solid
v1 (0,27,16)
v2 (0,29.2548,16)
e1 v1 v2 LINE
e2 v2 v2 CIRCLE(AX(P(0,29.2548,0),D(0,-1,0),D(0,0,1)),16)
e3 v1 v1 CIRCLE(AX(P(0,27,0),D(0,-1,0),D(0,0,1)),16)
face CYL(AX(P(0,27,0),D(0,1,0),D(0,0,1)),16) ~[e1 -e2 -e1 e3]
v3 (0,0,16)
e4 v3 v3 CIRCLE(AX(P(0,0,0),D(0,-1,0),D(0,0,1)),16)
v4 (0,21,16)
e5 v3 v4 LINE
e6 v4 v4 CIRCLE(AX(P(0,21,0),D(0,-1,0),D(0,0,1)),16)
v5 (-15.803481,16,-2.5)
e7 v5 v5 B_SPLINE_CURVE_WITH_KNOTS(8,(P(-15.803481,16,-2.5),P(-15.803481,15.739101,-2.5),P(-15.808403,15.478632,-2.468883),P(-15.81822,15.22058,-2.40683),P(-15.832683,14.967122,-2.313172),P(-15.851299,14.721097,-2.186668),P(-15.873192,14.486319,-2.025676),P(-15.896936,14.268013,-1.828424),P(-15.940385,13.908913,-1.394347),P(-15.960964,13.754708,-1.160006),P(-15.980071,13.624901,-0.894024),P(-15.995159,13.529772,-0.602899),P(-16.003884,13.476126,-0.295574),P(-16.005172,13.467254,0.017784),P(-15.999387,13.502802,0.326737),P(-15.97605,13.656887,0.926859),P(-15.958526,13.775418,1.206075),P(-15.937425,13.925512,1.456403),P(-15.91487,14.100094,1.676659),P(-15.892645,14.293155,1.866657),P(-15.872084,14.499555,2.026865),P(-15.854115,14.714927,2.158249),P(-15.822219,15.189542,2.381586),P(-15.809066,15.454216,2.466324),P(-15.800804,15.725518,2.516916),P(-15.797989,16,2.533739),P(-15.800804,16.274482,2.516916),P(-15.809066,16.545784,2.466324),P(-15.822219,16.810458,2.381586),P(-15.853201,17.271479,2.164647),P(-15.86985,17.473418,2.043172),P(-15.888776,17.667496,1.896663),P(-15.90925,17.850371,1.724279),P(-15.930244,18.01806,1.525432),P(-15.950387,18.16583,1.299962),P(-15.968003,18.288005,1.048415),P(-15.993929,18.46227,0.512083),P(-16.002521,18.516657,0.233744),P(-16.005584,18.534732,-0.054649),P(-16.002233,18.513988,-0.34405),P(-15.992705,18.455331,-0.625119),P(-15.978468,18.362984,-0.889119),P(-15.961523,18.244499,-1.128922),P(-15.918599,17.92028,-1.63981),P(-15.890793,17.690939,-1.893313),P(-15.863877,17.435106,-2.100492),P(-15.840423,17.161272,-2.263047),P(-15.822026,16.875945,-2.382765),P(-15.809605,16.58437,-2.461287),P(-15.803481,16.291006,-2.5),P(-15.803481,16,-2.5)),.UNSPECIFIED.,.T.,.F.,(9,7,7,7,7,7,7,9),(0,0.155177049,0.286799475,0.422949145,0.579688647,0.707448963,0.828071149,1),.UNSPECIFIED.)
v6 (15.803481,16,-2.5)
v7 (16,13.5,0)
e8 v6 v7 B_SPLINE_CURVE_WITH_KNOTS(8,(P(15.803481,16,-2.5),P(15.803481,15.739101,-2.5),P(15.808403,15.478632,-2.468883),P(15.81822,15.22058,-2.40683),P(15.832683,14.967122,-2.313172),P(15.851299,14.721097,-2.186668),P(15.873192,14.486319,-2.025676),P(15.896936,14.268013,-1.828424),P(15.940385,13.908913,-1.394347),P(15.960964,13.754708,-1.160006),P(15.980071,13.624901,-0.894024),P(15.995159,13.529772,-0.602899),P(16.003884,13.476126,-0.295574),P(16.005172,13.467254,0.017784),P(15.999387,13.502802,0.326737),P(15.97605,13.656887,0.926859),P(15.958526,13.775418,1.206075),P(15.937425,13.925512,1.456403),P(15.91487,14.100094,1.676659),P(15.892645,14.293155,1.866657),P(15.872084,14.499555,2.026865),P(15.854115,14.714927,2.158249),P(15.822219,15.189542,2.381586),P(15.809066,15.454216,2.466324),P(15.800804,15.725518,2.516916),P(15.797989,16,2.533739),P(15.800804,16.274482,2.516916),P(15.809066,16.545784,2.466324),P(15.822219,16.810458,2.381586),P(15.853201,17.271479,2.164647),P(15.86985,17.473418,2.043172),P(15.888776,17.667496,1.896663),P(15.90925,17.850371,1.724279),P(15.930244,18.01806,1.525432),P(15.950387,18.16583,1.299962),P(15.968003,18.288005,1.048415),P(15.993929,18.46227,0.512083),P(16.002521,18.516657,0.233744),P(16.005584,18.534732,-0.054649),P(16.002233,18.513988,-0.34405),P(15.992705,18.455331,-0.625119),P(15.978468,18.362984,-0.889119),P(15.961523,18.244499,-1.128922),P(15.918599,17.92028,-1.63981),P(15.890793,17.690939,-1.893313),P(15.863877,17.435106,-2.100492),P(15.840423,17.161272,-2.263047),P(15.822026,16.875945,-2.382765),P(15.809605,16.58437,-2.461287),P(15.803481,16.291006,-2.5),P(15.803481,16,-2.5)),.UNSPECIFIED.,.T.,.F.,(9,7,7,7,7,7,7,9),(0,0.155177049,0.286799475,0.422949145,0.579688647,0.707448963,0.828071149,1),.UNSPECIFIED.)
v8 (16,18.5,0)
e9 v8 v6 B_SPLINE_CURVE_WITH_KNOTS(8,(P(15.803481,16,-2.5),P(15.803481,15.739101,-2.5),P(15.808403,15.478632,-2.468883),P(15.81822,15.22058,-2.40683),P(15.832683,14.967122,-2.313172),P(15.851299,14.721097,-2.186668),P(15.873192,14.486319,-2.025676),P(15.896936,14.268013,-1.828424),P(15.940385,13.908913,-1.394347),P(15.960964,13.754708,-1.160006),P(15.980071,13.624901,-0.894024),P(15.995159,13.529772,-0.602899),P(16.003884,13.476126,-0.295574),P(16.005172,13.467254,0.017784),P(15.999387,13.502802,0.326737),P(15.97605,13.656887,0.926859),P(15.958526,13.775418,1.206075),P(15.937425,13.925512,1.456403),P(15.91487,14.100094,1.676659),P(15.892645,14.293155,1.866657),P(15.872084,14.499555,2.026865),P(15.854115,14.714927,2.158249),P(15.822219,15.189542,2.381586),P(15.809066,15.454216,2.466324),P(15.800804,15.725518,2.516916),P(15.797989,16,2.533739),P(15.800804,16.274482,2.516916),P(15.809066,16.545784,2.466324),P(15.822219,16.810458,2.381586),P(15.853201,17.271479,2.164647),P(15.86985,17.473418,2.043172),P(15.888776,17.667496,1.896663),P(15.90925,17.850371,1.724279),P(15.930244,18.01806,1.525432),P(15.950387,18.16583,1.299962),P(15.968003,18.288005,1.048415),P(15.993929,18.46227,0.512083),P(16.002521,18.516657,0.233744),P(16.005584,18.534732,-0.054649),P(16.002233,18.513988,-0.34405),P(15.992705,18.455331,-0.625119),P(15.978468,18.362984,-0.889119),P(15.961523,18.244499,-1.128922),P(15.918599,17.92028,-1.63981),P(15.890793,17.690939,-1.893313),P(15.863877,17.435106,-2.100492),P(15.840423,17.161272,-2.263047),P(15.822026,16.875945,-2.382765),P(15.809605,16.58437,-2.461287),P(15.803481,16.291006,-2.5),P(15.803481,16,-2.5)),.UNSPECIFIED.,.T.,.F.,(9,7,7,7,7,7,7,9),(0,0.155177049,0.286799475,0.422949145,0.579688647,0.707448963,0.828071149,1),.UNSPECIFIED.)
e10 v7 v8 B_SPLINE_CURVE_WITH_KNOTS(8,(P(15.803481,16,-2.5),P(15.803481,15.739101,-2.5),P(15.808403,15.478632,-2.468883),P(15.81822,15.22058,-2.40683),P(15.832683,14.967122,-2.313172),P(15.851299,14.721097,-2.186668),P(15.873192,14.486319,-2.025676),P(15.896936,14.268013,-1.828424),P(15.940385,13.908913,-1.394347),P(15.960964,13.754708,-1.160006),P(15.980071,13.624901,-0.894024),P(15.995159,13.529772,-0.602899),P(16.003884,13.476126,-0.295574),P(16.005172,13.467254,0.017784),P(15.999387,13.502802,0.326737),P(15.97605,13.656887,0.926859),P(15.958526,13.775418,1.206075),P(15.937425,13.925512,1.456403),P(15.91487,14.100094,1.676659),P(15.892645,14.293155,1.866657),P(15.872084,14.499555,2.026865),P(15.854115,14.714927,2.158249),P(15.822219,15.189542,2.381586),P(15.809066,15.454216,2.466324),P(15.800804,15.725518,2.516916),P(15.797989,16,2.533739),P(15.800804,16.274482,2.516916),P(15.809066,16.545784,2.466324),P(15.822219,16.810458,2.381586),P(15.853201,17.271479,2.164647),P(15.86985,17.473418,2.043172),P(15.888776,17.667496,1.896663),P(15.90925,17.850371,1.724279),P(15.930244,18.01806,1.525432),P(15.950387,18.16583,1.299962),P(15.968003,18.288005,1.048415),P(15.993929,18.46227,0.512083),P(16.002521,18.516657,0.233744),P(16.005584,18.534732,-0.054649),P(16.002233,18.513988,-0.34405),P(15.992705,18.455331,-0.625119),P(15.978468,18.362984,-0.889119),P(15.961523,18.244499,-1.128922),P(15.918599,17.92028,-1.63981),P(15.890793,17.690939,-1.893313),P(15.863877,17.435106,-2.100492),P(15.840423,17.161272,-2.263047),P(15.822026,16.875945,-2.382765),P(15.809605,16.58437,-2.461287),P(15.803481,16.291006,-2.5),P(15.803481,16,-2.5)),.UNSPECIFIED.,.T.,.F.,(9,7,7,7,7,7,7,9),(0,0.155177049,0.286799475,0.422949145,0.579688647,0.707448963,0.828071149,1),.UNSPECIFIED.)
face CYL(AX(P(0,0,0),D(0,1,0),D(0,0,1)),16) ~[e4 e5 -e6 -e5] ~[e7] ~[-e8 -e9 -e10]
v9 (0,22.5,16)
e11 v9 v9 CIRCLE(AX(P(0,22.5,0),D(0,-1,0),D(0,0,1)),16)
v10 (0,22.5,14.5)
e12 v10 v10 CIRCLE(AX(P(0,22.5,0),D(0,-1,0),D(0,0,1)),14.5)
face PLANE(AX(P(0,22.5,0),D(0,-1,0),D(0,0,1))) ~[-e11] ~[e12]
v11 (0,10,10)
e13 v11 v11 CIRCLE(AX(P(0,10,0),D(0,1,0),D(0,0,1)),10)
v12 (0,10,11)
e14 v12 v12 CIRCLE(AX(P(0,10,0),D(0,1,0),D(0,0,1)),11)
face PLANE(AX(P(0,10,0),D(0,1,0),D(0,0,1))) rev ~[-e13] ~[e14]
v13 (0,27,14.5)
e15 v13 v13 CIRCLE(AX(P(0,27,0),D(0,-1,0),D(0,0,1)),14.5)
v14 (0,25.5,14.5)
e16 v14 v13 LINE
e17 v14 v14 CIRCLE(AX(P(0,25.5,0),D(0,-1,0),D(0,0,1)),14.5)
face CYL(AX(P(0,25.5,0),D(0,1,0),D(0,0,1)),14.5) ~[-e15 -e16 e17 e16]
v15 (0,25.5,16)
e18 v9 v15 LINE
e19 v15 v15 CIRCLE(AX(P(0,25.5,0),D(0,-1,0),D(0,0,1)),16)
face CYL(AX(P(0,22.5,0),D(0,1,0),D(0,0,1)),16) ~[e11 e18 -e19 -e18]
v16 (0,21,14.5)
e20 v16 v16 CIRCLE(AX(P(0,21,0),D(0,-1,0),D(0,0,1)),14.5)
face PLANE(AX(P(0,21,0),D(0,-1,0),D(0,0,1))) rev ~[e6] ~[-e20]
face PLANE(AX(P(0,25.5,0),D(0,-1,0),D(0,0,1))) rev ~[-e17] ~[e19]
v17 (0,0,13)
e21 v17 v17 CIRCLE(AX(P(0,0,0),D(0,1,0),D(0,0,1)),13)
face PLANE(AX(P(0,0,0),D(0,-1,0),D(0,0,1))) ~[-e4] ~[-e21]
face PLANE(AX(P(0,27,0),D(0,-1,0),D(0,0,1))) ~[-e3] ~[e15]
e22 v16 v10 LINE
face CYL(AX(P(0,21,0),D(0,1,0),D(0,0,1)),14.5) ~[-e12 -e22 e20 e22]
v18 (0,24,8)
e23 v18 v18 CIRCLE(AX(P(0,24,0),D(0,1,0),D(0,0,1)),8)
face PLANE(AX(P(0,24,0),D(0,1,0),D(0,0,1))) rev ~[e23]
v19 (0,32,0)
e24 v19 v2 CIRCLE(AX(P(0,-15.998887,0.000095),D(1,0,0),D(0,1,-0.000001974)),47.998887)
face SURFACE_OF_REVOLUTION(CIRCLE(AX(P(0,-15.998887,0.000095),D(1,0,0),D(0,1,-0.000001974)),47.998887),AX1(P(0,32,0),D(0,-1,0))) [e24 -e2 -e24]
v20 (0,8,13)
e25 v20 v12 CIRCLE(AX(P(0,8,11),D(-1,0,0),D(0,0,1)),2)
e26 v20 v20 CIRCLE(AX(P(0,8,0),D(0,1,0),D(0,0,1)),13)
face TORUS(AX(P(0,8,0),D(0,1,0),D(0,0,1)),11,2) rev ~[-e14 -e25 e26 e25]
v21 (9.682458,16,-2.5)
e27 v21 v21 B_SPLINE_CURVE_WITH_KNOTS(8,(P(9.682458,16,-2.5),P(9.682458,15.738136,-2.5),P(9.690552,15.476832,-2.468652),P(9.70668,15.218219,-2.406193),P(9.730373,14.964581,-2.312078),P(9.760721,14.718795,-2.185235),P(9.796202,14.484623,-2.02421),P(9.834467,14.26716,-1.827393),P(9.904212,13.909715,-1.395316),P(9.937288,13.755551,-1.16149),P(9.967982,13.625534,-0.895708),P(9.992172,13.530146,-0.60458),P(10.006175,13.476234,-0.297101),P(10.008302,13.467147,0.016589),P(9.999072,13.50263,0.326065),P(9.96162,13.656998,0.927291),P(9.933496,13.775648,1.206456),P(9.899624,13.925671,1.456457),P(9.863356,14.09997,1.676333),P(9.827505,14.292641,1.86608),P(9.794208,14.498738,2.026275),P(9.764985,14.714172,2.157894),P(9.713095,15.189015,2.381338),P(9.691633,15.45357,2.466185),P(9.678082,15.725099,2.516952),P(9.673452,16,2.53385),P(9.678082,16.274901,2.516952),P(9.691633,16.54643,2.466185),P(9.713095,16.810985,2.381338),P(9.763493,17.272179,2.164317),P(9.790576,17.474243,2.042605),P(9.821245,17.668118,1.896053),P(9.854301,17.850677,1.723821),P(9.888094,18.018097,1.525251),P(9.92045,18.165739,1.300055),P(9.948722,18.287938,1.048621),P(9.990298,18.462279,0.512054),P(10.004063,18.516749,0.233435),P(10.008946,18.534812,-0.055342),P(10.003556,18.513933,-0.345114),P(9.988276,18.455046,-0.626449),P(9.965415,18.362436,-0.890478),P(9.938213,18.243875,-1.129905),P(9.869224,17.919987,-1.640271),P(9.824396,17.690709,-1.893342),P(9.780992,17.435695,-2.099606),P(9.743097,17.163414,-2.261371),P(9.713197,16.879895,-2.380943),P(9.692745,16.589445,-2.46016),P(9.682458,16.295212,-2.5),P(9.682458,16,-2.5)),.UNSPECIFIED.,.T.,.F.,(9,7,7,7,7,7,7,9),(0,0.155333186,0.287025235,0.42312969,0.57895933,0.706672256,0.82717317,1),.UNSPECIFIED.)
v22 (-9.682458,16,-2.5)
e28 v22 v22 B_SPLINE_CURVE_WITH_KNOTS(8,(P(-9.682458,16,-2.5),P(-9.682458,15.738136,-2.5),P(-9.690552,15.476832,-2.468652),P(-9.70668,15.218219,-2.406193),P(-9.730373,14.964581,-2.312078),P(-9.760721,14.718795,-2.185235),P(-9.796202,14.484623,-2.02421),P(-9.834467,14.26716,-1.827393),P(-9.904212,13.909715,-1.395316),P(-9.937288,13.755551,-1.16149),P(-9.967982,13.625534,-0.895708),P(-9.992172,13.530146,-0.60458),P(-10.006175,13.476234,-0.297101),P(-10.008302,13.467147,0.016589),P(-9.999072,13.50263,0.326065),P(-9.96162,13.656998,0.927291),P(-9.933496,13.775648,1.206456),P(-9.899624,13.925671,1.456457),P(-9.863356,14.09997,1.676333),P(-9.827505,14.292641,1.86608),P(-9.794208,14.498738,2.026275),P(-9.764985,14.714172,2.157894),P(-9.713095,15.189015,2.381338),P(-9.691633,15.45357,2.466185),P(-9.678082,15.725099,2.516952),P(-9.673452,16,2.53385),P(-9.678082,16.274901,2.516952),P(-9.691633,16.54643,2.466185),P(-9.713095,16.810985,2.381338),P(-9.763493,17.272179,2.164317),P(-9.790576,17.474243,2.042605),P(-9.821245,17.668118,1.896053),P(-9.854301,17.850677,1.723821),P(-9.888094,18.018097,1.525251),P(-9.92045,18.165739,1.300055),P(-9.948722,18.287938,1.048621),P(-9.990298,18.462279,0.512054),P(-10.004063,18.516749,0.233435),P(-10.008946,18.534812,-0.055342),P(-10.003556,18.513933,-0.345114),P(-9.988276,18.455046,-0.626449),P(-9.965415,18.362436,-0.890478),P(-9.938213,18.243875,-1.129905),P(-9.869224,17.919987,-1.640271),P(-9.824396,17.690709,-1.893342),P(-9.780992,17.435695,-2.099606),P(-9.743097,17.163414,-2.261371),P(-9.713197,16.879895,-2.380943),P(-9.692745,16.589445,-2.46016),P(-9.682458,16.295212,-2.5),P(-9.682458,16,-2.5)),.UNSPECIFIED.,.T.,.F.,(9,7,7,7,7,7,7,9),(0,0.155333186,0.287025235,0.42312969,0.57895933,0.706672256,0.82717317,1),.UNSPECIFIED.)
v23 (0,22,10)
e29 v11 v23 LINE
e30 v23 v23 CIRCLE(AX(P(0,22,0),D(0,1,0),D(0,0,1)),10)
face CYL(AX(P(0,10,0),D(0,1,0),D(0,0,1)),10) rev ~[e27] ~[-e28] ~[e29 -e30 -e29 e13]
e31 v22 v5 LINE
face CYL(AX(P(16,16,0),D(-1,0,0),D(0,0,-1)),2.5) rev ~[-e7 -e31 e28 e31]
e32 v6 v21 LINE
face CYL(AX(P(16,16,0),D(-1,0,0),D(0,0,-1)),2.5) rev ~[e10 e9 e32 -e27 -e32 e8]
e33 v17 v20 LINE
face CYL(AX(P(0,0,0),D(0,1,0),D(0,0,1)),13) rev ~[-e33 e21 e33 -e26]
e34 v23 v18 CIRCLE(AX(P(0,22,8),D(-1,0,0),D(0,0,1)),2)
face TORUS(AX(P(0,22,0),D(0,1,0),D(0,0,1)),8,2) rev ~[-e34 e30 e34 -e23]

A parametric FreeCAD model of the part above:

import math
import FreeCAD as App
import Part
import Sketcher


def edges_at(feature, points):
    """Names of the edges that pass closest to the given points."""
    edges = feature.Shape.Edges
    near = lambda p: min(range(len(edges)), key=lambda i: edges[i].distToShape(Part.Vertex(*p))[0])
    return sorted({f"Edge{near(p) + 1}" for p in points})

doc = App.newDocument("Part")
body = doc.addObject("PartDesign::Body", "Body")

# Sketch on YZ plane
sketch1 = body.newObject("Sketcher::SketchObject", "Sketch")
sketch1.AttachmentSupport = (doc.getObject("YZ_Plane"), [""])
sketch1.MapMode = "FlatFace"
sketch1.addGeometry(Part.LineSegment(App.Vector(0, 16, 0), App.Vector(0, 0, 0)), False)
sketch1.addGeometry(Part.LineSegment(App.Vector(0, 0, 0), App.Vector(32, 0, 0)), False)
sketch1.addGeometry(Part.ArcOfCircle(Part.Circle(App.Vector(-15.998887, 0.000095, 0), App.Vector(0, 0, 1), 47.998887), math.radians(-0.000113), math.radians(19.47157)), False)
sketch1.addGeometry(Part.LineSegment(App.Vector(29.2548, 16, 0), App.Vector(27, 16, 0)), False)
sketch1.addGeometry(Part.LineSegment(App.Vector(27, 16, 0), App.Vector(27, 14.5, 0)), False)
sketch1.addGeometry(Part.LineSegment(App.Vector(27, 14.5, 0), App.Vector(25.5, 14.5, 0)), False)
sketch1.addGeometry(Part.LineSegment(App.Vector(25.5, 14.5, 0), App.Vector(25.5, 16, 0)), False)
sketch1.addGeometry(Part.LineSegment(App.Vector(25.5, 16, 0), App.Vector(22.5, 16, 0)), False)
sketch1.addGeometry(Part.LineSegment(App.Vector(22.5, 16, 0), App.Vector(22.5, 14.5, 0)), False)
sketch1.addGeometry(Part.LineSegment(App.Vector(22.5, 14.5, 0), App.Vector(21, 14.5, 0)), False)
sketch1.addGeometry(Part.LineSegment(App.Vector(21, 14.5, 0), App.Vector(21, 16, 0)), False)
sketch1.addGeometry(Part.LineSegment(App.Vector(21, 16, 0), App.Vector(0, 16, 0)), False)
sketch1.addConstraint(Sketcher.Constraint("Coincident", 0, 2, 1, 1))
sketch1.addConstraint(Sketcher.Constraint("Coincident", 1, 2, 2, 1))
sketch1.addConstraint(Sketcher.Constraint("Coincident", 2, 2, 3, 1))
sketch1.addConstraint(Sketcher.Constraint("Coincident", 3, 2, 4, 1))
sketch1.addConstraint(Sketcher.Constraint("Coincident", 4, 2, 5, 1))
sketch1.addConstraint(Sketcher.Constraint("Coincident", 5, 2, 6, 1))
sketch1.addConstraint(Sketcher.Constraint("Coincident", 6, 2, 7, 1))
sketch1.addConstraint(Sketcher.Constraint("Coincident", 7, 2, 8, 1))
sketch1.addConstraint(Sketcher.Constraint("Coincident", 8, 2, 9, 1))
sketch1.addConstraint(Sketcher.Constraint("Coincident", 9, 2, 10, 1))
sketch1.addConstraint(Sketcher.Constraint("Coincident", 10, 2, 11, 1))
sketch1.addConstraint(Sketcher.Constraint("Coincident", 11, 2, 0, 1))
sketch1.addConstraint(Sketcher.Constraint("Vertical", 0))
sketch1.addConstraint(Sketcher.Constraint("Horizontal", 1))
sketch1.addConstraint(Sketcher.Constraint("Horizontal", 3))
sketch1.addConstraint(Sketcher.Constraint("Vertical", 4))
sketch1.addConstraint(Sketcher.Constraint("Horizontal", 5))
sketch1.addConstraint(Sketcher.Constraint("Vertical", 6))
sketch1.addConstraint(Sketcher.Constraint("Horizontal", 7))
sketch1.addConstraint(Sketcher.Constraint("Vertical", 8))
sketch1.addConstraint(Sketcher.Constraint("Horizontal", 9))
sketch1.addConstraint(Sketcher.Constraint("Vertical", 10))
sketch1.addConstraint(Sketcher.Constraint("Horizontal", 11))
sketch1.addConstraint(Sketcher.Constraint("Coincident", 0, 2, -1, 1))
sketch1.addConstraint(Sketcher.Constraint("PointOnObject", 2, 3, -1))
sketch1.addConstraint(Sketcher.Constraint("Horizontal", 3, 2, 6, 2))
sketch1.addConstraint(Sketcher.Constraint("Horizontal", 5, 2, 8, 2))
sketch1.addConstraint(Sketcher.Constraint("Horizontal", 7, 2, 10, 2))
sketch1.addConstraint(Sketcher.Constraint("Equal", 5, 9))
sketch1.addConstraint(Sketcher.Constraint("Equal", 9, 4))
sketch1.addConstraint(Sketcher.Constraint("DistanceX", 1, 1, 1, 2, 32.0))
sketch1.addConstraint(Sketcher.Constraint("DistanceX", 7, 2, 7, 1, 3.0))
sketch1.addConstraint(Sketcher.Constraint("DistanceX", 11, 2, 11, 1, 21.0))
sketch1.addConstraint(Sketcher.Constraint("DistanceY", 0, 2, 0, 1, 16.0))
sketch1.addConstraint(Sketcher.Constraint("DistanceX", 5, 2, 5, 1, 1.5))
sketch1.addConstraint(Sketcher.Constraint("Radius", 2, 47.999))
revolution = body.newObject("PartDesign::Revolution", "Revolution")
revolution.Profile = sketch1
revolution.ReferenceAxis = (sketch1, ["H_Axis"])
revolution.Angle = 360

# Sketch on YZ plane
sketch2 = body.newObject("Sketcher::SketchObject", "Sketch001")
sketch2.AttachmentSupport = (doc.getObject("YZ_Plane"), [""])
sketch2.MapMode = "FlatFace"
sketch2.addGeometry(Part.LineSegment(App.Vector(10, 13, 0), App.Vector(0, 13, 0)), False)
sketch2.addGeometry(Part.LineSegment(App.Vector(0, 13, 0), App.Vector(0, 0, 0)), False)
sketch2.addGeometry(Part.LineSegment(App.Vector(0, 0, 0), App.Vector(24, 0, 0)), False)
sketch2.addGeometry(Part.LineSegment(App.Vector(24, 0, 0), App.Vector(24, 10, 0)), False)
sketch2.addGeometry(Part.LineSegment(App.Vector(24, 10, 0), App.Vector(10, 10, 0)), False)
sketch2.addGeometry(Part.LineSegment(App.Vector(10, 10, 0), App.Vector(10, 13, 0)), False)
sketch2.addConstraint(Sketcher.Constraint("Coincident", 0, 2, 1, 1))
sketch2.addConstraint(Sketcher.Constraint("Coincident", 1, 2, 2, 1))
sketch2.addConstraint(Sketcher.Constraint("Coincident", 2, 2, 3, 1))
sketch2.addConstraint(Sketcher.Constraint("Coincident", 3, 2, 4, 1))
sketch2.addConstraint(Sketcher.Constraint("Coincident", 4, 2, 5, 1))
sketch2.addConstraint(Sketcher.Constraint("Coincident", 5, 2, 0, 1))
sketch2.addConstraint(Sketcher.Constraint("Horizontal", 0))
sketch2.addConstraint(Sketcher.Constraint("Vertical", 1))
sketch2.addConstraint(Sketcher.Constraint("Horizontal", 2))
sketch2.addConstraint(Sketcher.Constraint("Vertical", 3))
sketch2.addConstraint(Sketcher.Constraint("Horizontal", 4))
sketch2.addConstraint(Sketcher.Constraint("Vertical", 5))
sketch2.addConstraint(Sketcher.Constraint("Coincident", 1, 2, -1, 1))
sketch2.addConstraint(Sketcher.Constraint("Equal", 0, 3))
sketch2.addConstraint(Sketcher.Constraint("DistanceX", 0, 2, 0, 1, 10.0))
sketch2.addConstraint(Sketcher.Constraint("DistanceX", 2, 1, 2, 2, 24.0))
sketch2.addConstraint(Sketcher.Constraint("DistanceY", 1, 2, 1, 1, 13.0))
groove = body.newObject("PartDesign::Groove", "Groove")
groove.Profile = sketch2
groove.ReferenceAxis = (sketch2, ["H_Axis"])
groove.Angle = 360
doc.recompute()

fillet = body.newObject("PartDesign::Fillet", "Fillet")
fillet.Base = (groove, edges_at(groove, [(0, 10, -13), (0, 24, -10)]))
fillet.Radius = 2

# Sketch on YZ plane
sketch3 = body.newObject("Sketcher::SketchObject", "Sketch002")
sketch3.AttachmentSupport = (doc.getObject("YZ_Plane"), [""])
sketch3.MapMode = "FlatFace"
sketch3.AttachmentOffset = App.Placement(App.Vector(0, 0, 16), App.Rotation())
sketch3.addGeometry(Part.Circle(App.Vector(16, 0, 0), App.Vector(0, 0, 1), 2.5), False)
sketch3.addConstraint(Sketcher.Constraint("PointOnObject", 0, 3, -1))
sketch3.addConstraint(Sketcher.Constraint("Diameter", 0, 5.0))
sketch3.addConstraint(Sketcher.Constraint("DistanceX", -1, 1, 0, 3, 16.0))
doc.recompute()
hole = body.newObject("PartDesign::Hole", "Hole")
hole.Profile = sketch3
hole.ThreadType = "None"
hole.Diameter = 5
hole.DepthType = "ThroughAll"

doc.recompute()
